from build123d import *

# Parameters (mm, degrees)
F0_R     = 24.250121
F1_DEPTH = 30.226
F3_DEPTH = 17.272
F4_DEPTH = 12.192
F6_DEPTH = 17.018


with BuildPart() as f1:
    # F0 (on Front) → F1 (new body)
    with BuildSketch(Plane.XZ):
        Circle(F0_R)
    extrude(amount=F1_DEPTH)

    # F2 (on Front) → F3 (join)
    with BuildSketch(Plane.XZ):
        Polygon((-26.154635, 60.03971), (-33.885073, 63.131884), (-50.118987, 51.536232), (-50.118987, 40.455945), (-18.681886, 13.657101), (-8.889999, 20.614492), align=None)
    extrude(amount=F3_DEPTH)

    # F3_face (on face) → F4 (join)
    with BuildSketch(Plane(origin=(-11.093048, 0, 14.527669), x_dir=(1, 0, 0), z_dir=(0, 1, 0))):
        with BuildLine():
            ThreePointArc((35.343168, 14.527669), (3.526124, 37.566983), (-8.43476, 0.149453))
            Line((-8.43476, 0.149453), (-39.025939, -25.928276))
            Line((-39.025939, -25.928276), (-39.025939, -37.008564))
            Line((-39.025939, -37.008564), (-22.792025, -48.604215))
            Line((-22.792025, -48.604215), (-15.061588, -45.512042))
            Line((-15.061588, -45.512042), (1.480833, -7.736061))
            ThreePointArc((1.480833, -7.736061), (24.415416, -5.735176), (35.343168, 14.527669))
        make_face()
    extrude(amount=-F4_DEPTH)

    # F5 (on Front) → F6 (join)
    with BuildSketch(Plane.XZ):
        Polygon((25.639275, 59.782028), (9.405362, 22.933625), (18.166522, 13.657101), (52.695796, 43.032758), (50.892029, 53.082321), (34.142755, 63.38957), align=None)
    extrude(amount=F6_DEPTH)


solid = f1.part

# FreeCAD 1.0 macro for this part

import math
import FreeCAD as App
import Part
import Sketcher
Q = App.Units.Quantity

doc = App.newDocument("Part")
body = doc.addObject("PartDesign::Body", "Body")

# Sketch on XZ plane
sketch1 = doc.addObject("Sketcher::SketchObject", "Sketch")
body.addObject(sketch1)
sketch1.AttachmentSupport = (doc.XZ_Plane, [""])
sketch1.MapMode = "FlatFace"
sketch1.addGeometry(Part.Circle(App.Vector(0, 0, 0), App.Vector(0, 0, 1), 24), False)
sketch1.addConstraint([
    Sketcher.Constraint("Coincident", 0, 3, -1, 1),
    Sketcher.Constraint("Diameter", 0, 48.500242),
])
pad1 = doc.addObject("PartDesign::Pad", "Pad")
body.addObject(pad1)
pad1.Profile = sketch1
pad1.Length = Q("1.19 in")

# Sketch on XZ plane
sketch2 = doc.addObject("Sketcher::SketchObject", "Sketch001")
body.addObject(sketch2)
sketch2.AttachmentSupport = (doc.XZ_Plane, [""])
sketch2.MapMode = "FlatFace"
sketch2.addGeometry([
    Part.LineSegment(App.Vector(-26, 60, 0), App.Vector(-34, 63, 0)),  # 0
    Part.LineSegment(App.Vector(-34, 63, 0), App.Vector(-50, 52, 0)),  # 1
    Part.LineSegment(App.Vector(-50, 52, 0), App.Vector(-50, 40, 0)),  # 2
    Part.LineSegment(App.Vector(-50, 40, 0), App.Vector(-19, 14, 0)),  # 3
    Part.LineSegment(App.Vector(-19, 14, 0), App.Vector(-9, 21, 0)),  # 4
    Part.LineSegment(App.Vector(-9, 21, 0), App.Vector(-26, 60, 0)),  # 5
], False)
sketch2.addConstraint([
    Sketcher.Constraint("Coincident", 0, 2, 1, 1),
    Sketcher.Constraint("Coincident", 1, 2, 2, 1),
    Sketcher.Constraint("Coincident", 2, 2, 3, 1),
    Sketcher.Constraint("Coincident", 3, 2, 4, 1),
    Sketcher.Constraint("Coincident", 4, 2, 5, 1),
    Sketcher.Constraint("Coincident", 5, 2, 0, 1),
    Sketcher.Constraint("Vertical", 2),
    Sketcher.Constraint("DistanceX", 4, 2, -1, 1, Q("0.35 in")),
    Sketcher.Constraint("DistanceY", -1, 1, 3, 2, 13.657101),
    Sketcher.Constraint("DistanceX", 2, 2, 3, 2, 31.437101),
    Sketcher.Constraint("DistanceY", 2, 2, 2, 1, 11.080287),
    Sketcher.Constraint("DistanceY", -1, 1, 1, 2, 51.536232),
    Sketcher.Constraint("DistanceY", -1, 1, 4, 2, 20.614492),
    Sketcher.Constraint("DistanceY", -1, 1, 5, 2, 60.03971),
    Sketcher.Constraint("DistanceY", 2, 2, 0, 2, 22.675939),
    Sketcher.Constraint("DistanceX", 1, 2, 5, 2, 23.964352),
    Sketcher.Constraint("Distance", 0, 8.325936),
    Sketcher.Constraint("Distance", 4, 12.011925),
])
pad2 = doc.addObject("PartDesign::Pad", "Pad001")
body.addObject(pad2)
pad2.Profile = sketch2
pad2.Length = Q("0.68 in")

# Sketch on XZ plane
sketch3 = doc.addObject("Sketcher::SketchObject", "Sketch002")
body.addObject(sketch3)
sketch3.AttachmentSupport = (doc.XZ_Plane, [""])
sketch3.MapMode = "FlatFace"
sketch3.addGeometry([
    Part.ArcOfCircle(Part.Circle(App.Vector(0, 0, 0), App.Vector(0, 0, 1), 24), math.radians(144), math.radians(360)),  # 0
    Part.LineSegment(App.Vector(-20, 14, 0), App.Vector(-50, 40, 0)),  # 1
    Part.LineSegment(App.Vector(-50, 40, 0), App.Vector(-50, 52, 0)),  # 2
    Part.LineSegment(App.Vector(-50, 52, 0), App.Vector(-34, 63, 0)),  # 3
    Part.LineSegment(App.Vector(-34, 63, 0), App.Vector(-26, 60, 0)),  # 4
    Part.LineSegment(App.Vector(-26, 60, 0), App.Vector(-10, 22, 0)),  # 5
    Part.ArcOfCircle(Part.Circle(App.Vector(0, 0, 0), App.Vector(0, 0, 1), 24), math.radians(0), math.radians(113)),  # 6
], False)
sketch3.addConstraint([
    Sketcher.Constraint("Coincident", 0, 1, 1, 1),
    Sketcher.Constraint("Coincident", 1, 2, 2, 1),
    Sketcher.Constraint("Coincident", 2, 2, 3, 1),
    Sketcher.Constraint("Coincident", 3, 2, 4, 1),
    Sketcher.Constraint("Coincident", 4, 2, 5, 1),
    Sketcher.Constraint("Coincident", 5, 2, 6, 2),
    Sketcher.Constraint("Tangent", 6, 1, 0, 2),
    Sketcher.Constraint("Vertical", 2),
    Sketcher.Constraint("Coincident", 0, 3, -1, 1),
    Sketcher.Constraint("Equal", 0, 6),
    Sketcher.Constraint("PointOnObject", 6, 1, -1),
    Sketcher.Constraint("Radius", 0, 24.250121),
    Sketcher.Constraint("DistanceY", 2, 1, 2, 2, 11.080288),
    Sketcher.Constraint("Distance", 5, 41.239258),
    Sketcher.Constraint("DistanceY", -1, 1, 4, 2, 60.039711),
    Sketcher.Constraint("DistanceY", -1, 1, 5, 2, 22.26373),
    Sketcher.Constraint("DistanceX", 0, 1, 6, 3, 19.527809),
    Sketcher.Constraint("DistanceX", 1, 2, 0, 1, 30.591179),
    Sketcher.Constraint("DistanceY", 0, 1, 1, 2, 26.077729),
    Sketcher.Constraint("DistanceY", 2, 2, 3, 2, 11.595651),
    Sketcher.Constraint("Distance", 3, 19.949914),
])
pad3 = doc.addObject("PartDesign::Pad", "Pad002")
body.addObject(pad3)
pad3.Profile = sketch3
pad3.Length = Q("0.48 in")

# Sketch on XZ plane
sketch4 = doc.addObject("Sketcher::SketchObject", "Sketch003")
body.addObject(sketch4)
sketch4.AttachmentSupport = (doc.XZ_Plane, [""])
sketch4.MapMode = "FlatFace"
sketch4.addGeometry([
    Part.LineSegment(App.Vector(26, 60, 0), App.Vector(9, 23, 0)),  # 0
    Part.LineSegment(App.Vector(9, 23, 0), App.Vector(18, 14, 0)),  # 1
    Part.LineSegment(App.Vector(18, 14, 0), App.Vector(53, 43, 0)),  # 2
    Part.LineSegment(App.Vector(53, 43, 0), App.Vector(51, 53, 0)),  # 3
    Part.LineSegment(App.Vector(51, 53, 0), App.Vector(34, 63, 0)),  # 4
    Part.LineSegment(App.Vector(34, 63, 0), App.Vector(26, 60, 0)),  # 5
], False)
sketch4.addConstraint([
    Sketcher.Constraint("Coincident", 0, 2, 1, 1),
    Sketcher.Constraint("Coincident", 1, 2, 2, 1),
    Sketcher.Constraint("Coincident", 2, 2, 3, 1),
    Sketcher.Constraint("Coincident", 3, 2, 4, 1),
    Sketcher.Constraint("Coincident", 4, 2, 5, 1),
    Sketcher.Constraint("Coincident", 5, 2, 0, 1),
    Sketcher.Constraint("DistanceY", -1, 1, 1, 2, 13.657101),
    Sketcher.Constraint("Distance", 4, 19.666661),
    Sketcher.Constraint("DistanceX", -1, 1, 3, 2, 50.892029),
    Sketcher.Constraint("DistanceY", -1, 1, 3, 2, 53.082321),
    Sketcher.Constraint("DistanceY", -1, 1, 4, 2, 63.38957),
    Sketcher.Constraint("DistanceX", 0, 2, 1, 2, 8.76116),
    Sketcher.Constraint("DistanceX", 4, 2, 2, 2, 18.553041),
    Sketcher.Constraint("DistanceY", 2, 2, 4, 2, 20.356812),
    Sketcher.Constraint("DistanceX", 5, 2, 4, 2, 8.50348),
    Sketcher.Constraint("DistanceY", 2, 2, 5, 2, 16.74927),
    Sketcher.Constraint("Distance", 0, 40.265925),
    Sketcher.Constraint("Distance", 1, 12.759774),
])
pad4 = doc.addObject("PartDesign::Pad", "Pad003")
body.addObject(pad4)
pad4.Profile = sketch4
pad4.Length = Q("0.67 in")

doc.recompute()
